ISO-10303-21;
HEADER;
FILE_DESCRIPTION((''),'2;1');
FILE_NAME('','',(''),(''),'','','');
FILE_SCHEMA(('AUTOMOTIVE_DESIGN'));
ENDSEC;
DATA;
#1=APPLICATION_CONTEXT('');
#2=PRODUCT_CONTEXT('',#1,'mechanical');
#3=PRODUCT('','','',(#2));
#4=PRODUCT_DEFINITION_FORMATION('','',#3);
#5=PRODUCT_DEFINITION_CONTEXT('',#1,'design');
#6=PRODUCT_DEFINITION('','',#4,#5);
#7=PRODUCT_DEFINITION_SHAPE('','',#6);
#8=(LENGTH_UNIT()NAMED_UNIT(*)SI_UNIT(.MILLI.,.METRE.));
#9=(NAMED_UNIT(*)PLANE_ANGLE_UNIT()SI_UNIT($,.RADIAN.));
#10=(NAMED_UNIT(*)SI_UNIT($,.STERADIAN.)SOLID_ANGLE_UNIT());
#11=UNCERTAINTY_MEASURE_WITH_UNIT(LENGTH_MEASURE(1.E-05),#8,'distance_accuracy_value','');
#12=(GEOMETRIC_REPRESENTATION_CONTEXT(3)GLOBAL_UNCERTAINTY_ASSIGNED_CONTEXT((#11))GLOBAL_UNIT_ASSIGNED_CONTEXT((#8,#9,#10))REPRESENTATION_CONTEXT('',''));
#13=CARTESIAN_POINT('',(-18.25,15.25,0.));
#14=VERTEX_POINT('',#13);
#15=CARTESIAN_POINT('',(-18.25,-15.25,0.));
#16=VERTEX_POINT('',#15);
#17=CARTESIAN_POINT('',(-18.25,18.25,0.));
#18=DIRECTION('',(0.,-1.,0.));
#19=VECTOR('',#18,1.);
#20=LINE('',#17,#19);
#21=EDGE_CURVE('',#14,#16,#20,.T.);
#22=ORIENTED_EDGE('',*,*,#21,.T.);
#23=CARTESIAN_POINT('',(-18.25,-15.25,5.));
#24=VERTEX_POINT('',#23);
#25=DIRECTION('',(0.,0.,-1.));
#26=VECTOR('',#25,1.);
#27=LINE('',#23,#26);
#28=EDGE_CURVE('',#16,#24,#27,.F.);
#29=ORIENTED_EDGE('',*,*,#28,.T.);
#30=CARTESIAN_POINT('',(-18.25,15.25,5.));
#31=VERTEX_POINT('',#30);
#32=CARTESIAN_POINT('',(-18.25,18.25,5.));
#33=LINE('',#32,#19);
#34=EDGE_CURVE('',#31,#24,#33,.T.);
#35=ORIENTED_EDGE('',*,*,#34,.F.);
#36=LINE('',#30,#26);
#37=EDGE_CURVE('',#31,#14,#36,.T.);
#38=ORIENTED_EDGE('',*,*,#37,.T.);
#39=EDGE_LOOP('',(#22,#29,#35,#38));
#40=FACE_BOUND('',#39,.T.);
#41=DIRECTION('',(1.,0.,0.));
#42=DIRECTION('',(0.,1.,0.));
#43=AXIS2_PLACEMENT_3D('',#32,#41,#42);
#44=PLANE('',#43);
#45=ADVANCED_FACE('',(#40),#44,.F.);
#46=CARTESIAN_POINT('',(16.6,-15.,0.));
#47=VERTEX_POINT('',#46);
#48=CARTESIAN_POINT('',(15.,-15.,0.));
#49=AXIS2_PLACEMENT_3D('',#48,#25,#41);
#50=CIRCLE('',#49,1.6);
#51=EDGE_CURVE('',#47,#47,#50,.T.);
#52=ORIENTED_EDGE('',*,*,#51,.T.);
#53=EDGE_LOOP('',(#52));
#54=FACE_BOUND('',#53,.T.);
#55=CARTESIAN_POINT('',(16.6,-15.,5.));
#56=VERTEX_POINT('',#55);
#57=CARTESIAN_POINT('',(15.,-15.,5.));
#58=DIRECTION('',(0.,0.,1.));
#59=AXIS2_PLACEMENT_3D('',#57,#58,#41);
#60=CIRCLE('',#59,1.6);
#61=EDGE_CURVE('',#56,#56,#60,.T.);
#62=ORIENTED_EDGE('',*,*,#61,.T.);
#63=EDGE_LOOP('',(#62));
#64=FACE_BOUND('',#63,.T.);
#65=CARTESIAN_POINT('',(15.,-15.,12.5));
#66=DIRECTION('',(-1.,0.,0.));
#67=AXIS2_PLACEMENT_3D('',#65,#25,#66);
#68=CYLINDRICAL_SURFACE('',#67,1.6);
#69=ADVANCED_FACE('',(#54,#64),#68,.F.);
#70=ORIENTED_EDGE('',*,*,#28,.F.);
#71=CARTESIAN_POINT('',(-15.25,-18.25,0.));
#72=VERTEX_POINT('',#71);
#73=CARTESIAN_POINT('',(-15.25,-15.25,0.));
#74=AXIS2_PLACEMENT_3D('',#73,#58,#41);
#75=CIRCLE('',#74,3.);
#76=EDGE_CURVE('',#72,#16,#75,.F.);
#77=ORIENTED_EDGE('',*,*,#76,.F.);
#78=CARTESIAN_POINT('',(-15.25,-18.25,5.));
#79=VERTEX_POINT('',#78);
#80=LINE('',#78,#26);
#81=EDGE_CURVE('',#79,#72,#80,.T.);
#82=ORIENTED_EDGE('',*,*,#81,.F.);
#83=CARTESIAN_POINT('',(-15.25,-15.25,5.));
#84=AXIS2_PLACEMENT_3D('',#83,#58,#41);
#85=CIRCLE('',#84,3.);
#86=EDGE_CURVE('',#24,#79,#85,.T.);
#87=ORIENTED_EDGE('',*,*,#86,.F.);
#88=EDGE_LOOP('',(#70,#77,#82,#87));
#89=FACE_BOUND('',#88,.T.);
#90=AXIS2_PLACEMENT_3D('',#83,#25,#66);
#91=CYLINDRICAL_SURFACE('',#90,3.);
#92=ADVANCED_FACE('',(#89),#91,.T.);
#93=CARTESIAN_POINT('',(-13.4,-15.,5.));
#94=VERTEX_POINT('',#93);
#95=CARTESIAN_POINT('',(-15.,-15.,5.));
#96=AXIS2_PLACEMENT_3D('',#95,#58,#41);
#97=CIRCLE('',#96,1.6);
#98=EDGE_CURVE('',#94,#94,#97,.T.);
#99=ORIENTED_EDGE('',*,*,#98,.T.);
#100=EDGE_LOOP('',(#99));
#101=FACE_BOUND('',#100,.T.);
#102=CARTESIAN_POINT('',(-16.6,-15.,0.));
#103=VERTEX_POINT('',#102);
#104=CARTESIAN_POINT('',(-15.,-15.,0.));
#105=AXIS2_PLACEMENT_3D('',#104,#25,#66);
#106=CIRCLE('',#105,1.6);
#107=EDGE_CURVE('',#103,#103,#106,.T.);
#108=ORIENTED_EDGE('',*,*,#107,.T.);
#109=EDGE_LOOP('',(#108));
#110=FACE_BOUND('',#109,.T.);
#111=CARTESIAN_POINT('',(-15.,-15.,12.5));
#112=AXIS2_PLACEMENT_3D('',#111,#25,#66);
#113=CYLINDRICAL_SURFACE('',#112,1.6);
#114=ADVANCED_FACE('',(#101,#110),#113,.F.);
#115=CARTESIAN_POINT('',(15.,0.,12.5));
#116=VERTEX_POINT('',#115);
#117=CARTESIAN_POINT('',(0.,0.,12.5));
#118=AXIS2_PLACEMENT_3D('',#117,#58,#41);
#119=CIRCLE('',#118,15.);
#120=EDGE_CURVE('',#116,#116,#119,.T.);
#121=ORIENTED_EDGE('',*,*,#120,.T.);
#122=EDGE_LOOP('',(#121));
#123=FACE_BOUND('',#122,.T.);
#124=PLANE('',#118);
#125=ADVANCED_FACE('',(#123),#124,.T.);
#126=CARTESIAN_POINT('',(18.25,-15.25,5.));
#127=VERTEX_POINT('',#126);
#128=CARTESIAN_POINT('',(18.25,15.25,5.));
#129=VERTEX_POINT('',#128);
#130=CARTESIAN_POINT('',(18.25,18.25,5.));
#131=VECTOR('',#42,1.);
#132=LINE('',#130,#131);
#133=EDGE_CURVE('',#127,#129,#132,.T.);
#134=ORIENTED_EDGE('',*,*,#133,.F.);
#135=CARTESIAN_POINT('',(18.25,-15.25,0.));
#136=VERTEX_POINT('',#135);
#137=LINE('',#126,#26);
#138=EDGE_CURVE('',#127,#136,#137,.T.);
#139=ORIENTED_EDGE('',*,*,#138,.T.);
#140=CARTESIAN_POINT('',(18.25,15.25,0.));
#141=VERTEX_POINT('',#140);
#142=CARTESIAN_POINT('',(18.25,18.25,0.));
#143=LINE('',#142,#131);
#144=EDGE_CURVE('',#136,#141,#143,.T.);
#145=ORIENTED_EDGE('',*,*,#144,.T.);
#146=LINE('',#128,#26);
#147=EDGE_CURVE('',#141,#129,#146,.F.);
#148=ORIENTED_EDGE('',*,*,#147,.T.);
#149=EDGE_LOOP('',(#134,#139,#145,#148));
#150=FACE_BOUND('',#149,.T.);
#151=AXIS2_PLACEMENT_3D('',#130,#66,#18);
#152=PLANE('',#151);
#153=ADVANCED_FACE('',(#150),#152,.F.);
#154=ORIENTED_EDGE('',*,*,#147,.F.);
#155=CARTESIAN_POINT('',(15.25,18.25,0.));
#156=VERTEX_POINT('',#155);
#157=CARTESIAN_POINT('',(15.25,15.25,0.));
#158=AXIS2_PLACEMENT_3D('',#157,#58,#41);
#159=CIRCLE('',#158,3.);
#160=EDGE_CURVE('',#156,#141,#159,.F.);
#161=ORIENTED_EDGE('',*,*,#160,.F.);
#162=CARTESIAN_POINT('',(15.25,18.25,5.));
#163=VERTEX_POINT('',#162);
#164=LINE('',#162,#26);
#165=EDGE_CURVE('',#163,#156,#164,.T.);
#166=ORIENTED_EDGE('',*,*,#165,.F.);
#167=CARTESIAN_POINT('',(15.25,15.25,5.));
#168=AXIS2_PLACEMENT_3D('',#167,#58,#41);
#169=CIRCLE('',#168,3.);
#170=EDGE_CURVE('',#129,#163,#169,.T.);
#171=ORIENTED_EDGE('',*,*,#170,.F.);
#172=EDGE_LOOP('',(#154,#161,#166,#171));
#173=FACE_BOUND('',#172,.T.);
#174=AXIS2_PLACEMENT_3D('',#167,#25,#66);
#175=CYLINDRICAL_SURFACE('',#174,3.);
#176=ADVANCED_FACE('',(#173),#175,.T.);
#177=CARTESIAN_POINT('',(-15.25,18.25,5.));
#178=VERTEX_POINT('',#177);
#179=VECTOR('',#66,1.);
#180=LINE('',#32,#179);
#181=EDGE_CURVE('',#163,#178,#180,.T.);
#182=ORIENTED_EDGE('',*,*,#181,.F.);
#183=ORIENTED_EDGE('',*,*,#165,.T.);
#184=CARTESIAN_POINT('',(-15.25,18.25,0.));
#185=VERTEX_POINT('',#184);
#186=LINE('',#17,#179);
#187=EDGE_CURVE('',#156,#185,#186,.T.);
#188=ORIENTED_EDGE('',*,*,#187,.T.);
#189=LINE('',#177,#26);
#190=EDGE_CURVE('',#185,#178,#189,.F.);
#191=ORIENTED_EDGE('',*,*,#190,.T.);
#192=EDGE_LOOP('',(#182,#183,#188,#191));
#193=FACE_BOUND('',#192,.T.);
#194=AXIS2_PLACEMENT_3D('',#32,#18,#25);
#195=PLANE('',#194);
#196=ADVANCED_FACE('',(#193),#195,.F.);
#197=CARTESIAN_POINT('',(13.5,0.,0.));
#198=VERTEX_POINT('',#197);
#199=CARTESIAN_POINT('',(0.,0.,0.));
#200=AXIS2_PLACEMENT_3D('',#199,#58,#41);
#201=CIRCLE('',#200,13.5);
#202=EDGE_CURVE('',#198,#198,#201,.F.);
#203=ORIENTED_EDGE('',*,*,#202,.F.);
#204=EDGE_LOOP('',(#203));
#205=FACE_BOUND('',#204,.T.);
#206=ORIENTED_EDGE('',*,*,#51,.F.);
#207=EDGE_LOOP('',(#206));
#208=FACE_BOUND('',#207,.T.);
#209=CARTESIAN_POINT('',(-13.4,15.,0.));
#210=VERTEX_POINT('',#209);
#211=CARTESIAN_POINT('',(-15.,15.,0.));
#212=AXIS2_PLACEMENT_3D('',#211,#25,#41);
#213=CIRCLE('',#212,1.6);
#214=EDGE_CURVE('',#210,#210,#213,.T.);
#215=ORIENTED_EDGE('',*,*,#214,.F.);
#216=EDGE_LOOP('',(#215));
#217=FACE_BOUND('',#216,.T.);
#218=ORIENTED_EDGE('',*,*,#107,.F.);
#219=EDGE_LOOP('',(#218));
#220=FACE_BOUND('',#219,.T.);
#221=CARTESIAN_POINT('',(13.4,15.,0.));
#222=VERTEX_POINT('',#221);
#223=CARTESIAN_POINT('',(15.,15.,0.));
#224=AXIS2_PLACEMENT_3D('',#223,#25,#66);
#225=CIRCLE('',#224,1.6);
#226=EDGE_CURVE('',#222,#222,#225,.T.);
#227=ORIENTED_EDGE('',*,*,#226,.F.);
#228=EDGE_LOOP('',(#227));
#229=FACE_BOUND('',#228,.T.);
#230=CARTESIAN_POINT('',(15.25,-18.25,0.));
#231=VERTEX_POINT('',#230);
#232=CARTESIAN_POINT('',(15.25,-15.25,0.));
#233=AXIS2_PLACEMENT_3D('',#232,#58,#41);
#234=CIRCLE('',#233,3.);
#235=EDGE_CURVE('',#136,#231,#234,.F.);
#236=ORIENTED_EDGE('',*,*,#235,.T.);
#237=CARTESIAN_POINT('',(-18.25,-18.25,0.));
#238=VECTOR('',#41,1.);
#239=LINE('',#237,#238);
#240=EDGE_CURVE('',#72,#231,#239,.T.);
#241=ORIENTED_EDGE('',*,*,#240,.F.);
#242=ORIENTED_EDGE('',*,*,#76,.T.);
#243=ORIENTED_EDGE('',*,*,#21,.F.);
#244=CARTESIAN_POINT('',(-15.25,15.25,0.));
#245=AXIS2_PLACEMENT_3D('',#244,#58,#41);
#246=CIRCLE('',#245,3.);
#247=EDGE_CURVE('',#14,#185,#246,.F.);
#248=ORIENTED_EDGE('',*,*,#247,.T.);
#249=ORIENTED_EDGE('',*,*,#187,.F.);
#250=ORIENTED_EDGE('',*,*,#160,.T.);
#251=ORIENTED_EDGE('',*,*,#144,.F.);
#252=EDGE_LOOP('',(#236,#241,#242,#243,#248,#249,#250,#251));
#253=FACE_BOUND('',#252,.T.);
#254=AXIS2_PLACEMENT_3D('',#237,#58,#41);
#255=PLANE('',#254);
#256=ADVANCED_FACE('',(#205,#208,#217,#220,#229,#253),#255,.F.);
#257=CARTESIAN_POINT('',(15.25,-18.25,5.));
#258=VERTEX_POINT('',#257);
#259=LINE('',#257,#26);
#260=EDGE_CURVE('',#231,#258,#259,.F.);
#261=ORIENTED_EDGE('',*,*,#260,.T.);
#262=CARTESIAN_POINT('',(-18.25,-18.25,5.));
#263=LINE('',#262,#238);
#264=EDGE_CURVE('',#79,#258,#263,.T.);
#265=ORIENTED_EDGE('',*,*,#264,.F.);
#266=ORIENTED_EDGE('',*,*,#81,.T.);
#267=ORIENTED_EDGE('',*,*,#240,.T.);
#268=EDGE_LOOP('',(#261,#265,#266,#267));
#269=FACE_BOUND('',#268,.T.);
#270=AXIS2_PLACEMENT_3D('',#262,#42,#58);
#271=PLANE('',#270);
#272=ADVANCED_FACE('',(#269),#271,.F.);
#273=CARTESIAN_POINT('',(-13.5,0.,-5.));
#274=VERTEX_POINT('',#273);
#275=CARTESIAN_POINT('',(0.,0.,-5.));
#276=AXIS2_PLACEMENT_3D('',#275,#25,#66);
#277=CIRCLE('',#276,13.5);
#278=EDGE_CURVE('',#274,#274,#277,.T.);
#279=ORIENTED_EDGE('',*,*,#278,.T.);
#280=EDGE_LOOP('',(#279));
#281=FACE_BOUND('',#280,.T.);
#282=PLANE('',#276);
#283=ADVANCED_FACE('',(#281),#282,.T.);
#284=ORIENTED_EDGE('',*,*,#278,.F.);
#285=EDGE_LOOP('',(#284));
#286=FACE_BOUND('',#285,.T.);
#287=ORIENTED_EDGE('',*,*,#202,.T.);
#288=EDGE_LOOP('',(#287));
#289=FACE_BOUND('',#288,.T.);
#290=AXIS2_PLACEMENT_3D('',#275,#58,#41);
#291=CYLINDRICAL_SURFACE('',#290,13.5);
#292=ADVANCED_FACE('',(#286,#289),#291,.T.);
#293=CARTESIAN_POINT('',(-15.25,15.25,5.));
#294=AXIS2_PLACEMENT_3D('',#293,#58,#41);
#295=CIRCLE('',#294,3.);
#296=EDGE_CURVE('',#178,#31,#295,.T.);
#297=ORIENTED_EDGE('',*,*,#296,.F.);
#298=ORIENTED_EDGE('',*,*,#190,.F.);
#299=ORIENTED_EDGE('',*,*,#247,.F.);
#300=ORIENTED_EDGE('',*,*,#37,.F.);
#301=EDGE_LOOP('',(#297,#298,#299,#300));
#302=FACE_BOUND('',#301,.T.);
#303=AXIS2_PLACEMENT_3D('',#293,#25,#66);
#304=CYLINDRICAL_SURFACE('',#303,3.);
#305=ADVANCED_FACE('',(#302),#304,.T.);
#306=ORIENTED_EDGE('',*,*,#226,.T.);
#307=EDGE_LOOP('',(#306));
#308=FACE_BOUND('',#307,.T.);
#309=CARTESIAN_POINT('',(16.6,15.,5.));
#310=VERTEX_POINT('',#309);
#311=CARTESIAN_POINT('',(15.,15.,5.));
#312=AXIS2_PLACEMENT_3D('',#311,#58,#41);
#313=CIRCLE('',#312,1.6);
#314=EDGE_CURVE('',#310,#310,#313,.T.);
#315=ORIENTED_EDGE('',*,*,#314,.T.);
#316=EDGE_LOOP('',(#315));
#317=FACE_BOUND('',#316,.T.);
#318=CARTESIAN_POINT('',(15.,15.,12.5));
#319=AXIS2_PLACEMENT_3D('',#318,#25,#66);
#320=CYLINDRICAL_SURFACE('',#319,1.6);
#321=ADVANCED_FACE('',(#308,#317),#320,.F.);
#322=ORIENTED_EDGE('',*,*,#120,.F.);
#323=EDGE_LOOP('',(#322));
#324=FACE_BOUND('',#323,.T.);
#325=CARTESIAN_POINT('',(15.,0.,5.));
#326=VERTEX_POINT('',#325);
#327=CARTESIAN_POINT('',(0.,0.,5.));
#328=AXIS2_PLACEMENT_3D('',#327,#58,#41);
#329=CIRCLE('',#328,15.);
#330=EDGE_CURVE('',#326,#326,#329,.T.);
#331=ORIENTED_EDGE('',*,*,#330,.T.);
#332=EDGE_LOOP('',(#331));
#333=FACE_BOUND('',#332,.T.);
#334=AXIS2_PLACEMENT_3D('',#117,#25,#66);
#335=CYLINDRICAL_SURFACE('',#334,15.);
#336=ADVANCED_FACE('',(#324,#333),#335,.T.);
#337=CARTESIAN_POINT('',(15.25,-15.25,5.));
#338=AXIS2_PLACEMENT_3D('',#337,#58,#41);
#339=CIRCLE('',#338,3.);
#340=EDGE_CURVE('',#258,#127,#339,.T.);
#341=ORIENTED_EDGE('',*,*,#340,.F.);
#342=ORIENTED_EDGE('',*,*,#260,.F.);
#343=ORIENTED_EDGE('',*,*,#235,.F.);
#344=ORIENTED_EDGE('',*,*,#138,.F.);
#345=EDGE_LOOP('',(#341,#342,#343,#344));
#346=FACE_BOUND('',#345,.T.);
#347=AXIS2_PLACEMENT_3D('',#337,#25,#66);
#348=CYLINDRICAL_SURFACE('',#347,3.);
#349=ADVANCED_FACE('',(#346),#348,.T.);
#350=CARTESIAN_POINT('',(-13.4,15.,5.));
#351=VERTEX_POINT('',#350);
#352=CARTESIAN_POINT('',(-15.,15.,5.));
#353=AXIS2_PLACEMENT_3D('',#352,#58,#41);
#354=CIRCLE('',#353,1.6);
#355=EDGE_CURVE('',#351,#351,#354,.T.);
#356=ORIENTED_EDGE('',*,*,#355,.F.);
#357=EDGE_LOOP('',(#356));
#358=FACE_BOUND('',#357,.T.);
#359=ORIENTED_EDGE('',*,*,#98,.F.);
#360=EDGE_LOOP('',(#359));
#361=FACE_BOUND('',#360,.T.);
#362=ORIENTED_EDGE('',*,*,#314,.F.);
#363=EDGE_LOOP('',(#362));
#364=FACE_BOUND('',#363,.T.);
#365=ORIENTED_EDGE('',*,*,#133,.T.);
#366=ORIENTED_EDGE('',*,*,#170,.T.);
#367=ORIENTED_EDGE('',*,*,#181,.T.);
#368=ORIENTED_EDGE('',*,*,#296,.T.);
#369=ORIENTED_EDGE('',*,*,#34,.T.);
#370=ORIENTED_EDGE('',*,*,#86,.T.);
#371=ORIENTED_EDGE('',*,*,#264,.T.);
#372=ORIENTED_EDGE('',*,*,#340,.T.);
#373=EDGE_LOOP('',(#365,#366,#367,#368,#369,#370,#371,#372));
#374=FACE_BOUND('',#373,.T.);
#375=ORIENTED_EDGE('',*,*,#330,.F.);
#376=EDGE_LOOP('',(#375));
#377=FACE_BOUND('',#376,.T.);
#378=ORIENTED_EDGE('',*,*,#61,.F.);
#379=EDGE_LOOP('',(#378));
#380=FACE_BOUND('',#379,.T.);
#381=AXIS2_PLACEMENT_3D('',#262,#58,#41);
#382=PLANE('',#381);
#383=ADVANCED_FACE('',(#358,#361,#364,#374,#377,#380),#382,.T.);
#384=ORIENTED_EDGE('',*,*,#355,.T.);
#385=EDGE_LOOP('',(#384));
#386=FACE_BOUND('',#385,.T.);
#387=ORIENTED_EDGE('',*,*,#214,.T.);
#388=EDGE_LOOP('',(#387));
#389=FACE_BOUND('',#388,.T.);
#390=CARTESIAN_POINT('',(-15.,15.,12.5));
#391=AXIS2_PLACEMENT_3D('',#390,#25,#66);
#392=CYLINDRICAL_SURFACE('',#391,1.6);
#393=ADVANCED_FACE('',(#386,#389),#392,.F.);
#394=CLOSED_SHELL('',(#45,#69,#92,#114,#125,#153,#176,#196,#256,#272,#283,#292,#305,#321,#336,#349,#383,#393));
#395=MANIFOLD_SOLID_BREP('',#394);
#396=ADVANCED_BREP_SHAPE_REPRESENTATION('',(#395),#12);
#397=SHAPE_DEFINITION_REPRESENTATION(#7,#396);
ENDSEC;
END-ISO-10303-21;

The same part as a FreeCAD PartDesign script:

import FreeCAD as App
import Part
import Sketcher
Q = App.Units.Quantity


def edges_at(feature, points):
    """Names of the edges that pass closest to the given points."""
    edges = feature.Shape.Edges
    near = lambda p: min(range(len(edges)), key=lambda i: edges[i].distToShape(Part.Vertex(*p))[0])
    return sorted({f"Edge{near(p) + 1}" for p in points})

doc = App.newDocument("Part")
body = doc.addObject("PartDesign::Body", "Body")

# Sketch on XY plane
sketch1 = body.newObject("Sketcher::SketchObject", "Sketch")
sketch1.AttachmentSupport = (doc.getObject("XY_Plane"), [""])
sketch1.MapMode = "FlatFace"
sketch1.addGeometry([
    Part.LineSegment(App.Vector(-18, 18, 0), App.Vector(-18, -18, 0)),
    Part.LineSegment(App.Vector(-18, -18, 0), App.Vector(18, -18, 0)),
    Part.LineSegment(App.Vector(18, -18, 0), App.Vector(18, 18, 0)),
    Part.LineSegment(App.Vector(18, 18, 0), App.Vector(-18, 18, 0)),
], False)
sketch1.addConstraint([
    Sketcher.Constraint("Coincident", 0, 2, 1, 1),
    Sketcher.Constraint("Coincident", 1, 2, 2, 1),
    Sketcher.Constraint("Coincident", 2, 2, 3, 1),
    Sketcher.Constraint("Coincident", 3, 2, 0, 1),
    Sketcher.Constraint("Vertical", 0),
    Sketcher.Constraint("Horizontal", 1),
    Sketcher.Constraint("Vertical", 2),
    Sketcher.Constraint("Horizontal", 3),
    Sketcher.Constraint("Symmetric", 0, 2, 2, 2, -1, 1),
    Sketcher.Constraint("Equal", 3, 0),
    Sketcher.Constraint("DistanceX", 1, 1, 1, 2, Q("36.5 mm")),
])
pad1 = body.newObject("PartDesign::Pad", "Pad")
pad1.Profile = sketch1
pad1.Length = 5

# Sketch on XY plane
sketch2 = body.newObject("Sketcher::SketchObject", "Sketch001")
sketch2.AttachmentSupport = (doc.getObject("XY_Plane"), [""])
sketch2.MapMode = "FlatFace"
sketch2.AttachmentOffset = App.Placement(App.Vector(0, 0, 5), App.Rotation())
sketch2.addGeometry(Part.Circle(App.Vector(0, 0, 0), App.Vector(0, 0, 1), 15), False)
sketch2.addConstraint([
    Sketcher.Constraint("Coincident", 0, 3, -1, 1),
    Sketcher.Constraint("Diameter", 0, Q("30 mm")),
])
pad2 = body.newObject("PartDesign::Pad", "Pad001")
pad2.Profile = sketch2
pad2.Length = 7.5

# Sketch on XY plane
sketch3 = body.newObject("Sketcher::SketchObject", "Sketch002")
sketch3.AttachmentSupport = (doc.getObject("XY_Plane"), [""])
sketch3.MapMode = "FlatFace"
sketch3.addGeometry(Part.Circle(App.Vector(0, 0, 0), App.Vector(0, 0, 1), 14), False)
sketch3.addConstraint([
    Sketcher.Constraint("Coincident", 0, 3, -1, 1),
    Sketcher.Constraint("Diameter", 0, Q("27 mm")),
])
pad3 = body.newObject("PartDesign::Pad", "Pad002")
pad3.Profile = sketch3
pad3.Length = 5
pad3.Reversed = True

# Sketch on XY plane
sketch4 = body.newObject("Sketcher::SketchObject", "Sketch003")
sketch4.AttachmentSupport = (doc.getObject("XY_Plane"), [""])
sketch4.MapMode = "FlatFace"
sketch4.addGeometry([
    Part.Circle(App.Vector(15, 15, 0), App.Vector(0, 0, 1), 1.6),
    Part.Circle(App.Vector(15, -15, 0), App.Vector(0, 0, 1), 1.6),
    Part.Circle(App.Vector(-15, -15, 0), App.Vector(0, 0, 1), 1.6),
    Part.Circle(App.Vector(-15, 15, 0), App.Vector(0, 0, 1), 1.6),
], False)
sketch4.addConstraint([
    Sketcher.Constraint("Equal", 0, 1),
    Sketcher.Constraint("Equal", 1, 2),
    Sketcher.Constraint("Equal", 2, 3),
    Sketcher.Constraint("Symmetric", 0, 3, 2, 3, -1, 1),
    Sketcher.Constraint("Symmetric", 1, 3, 3, 3, -1, 1),
    Sketcher.Constraint("Symmetric", 1, 3, 2, 3, -2),
    Sketcher.Constraint("Diameter", 0, Q("3.2 mm")),
    Sketcher.Constraint("DistanceX", -1, 1, 0, 3, Q("15 mm")),
    Sketcher.Constraint("DistanceY", -1, 1, 0, 3, Q("15 mm")),
])
pocket1 = body.newObject("PartDesign::Pocket", "Pocket")
pocket1.Profile = sketch4
pocket1.Type = "ThroughAll"
pocket1.Reversed = True
doc.recompute()

fillet = body.newObject("PartDesign::Fillet", "Fillet")
fillet.Base = (pocket1, edges_at(pocket1, [
    (-18.25, 18.25, 2.5),
    (18.25, 18.25, 2.5),
    (18.25, -18.25, 2.5),
    (-18.25, -18.25, 2.5),
]))
fillet.Radius = 3

doc.recompute()
